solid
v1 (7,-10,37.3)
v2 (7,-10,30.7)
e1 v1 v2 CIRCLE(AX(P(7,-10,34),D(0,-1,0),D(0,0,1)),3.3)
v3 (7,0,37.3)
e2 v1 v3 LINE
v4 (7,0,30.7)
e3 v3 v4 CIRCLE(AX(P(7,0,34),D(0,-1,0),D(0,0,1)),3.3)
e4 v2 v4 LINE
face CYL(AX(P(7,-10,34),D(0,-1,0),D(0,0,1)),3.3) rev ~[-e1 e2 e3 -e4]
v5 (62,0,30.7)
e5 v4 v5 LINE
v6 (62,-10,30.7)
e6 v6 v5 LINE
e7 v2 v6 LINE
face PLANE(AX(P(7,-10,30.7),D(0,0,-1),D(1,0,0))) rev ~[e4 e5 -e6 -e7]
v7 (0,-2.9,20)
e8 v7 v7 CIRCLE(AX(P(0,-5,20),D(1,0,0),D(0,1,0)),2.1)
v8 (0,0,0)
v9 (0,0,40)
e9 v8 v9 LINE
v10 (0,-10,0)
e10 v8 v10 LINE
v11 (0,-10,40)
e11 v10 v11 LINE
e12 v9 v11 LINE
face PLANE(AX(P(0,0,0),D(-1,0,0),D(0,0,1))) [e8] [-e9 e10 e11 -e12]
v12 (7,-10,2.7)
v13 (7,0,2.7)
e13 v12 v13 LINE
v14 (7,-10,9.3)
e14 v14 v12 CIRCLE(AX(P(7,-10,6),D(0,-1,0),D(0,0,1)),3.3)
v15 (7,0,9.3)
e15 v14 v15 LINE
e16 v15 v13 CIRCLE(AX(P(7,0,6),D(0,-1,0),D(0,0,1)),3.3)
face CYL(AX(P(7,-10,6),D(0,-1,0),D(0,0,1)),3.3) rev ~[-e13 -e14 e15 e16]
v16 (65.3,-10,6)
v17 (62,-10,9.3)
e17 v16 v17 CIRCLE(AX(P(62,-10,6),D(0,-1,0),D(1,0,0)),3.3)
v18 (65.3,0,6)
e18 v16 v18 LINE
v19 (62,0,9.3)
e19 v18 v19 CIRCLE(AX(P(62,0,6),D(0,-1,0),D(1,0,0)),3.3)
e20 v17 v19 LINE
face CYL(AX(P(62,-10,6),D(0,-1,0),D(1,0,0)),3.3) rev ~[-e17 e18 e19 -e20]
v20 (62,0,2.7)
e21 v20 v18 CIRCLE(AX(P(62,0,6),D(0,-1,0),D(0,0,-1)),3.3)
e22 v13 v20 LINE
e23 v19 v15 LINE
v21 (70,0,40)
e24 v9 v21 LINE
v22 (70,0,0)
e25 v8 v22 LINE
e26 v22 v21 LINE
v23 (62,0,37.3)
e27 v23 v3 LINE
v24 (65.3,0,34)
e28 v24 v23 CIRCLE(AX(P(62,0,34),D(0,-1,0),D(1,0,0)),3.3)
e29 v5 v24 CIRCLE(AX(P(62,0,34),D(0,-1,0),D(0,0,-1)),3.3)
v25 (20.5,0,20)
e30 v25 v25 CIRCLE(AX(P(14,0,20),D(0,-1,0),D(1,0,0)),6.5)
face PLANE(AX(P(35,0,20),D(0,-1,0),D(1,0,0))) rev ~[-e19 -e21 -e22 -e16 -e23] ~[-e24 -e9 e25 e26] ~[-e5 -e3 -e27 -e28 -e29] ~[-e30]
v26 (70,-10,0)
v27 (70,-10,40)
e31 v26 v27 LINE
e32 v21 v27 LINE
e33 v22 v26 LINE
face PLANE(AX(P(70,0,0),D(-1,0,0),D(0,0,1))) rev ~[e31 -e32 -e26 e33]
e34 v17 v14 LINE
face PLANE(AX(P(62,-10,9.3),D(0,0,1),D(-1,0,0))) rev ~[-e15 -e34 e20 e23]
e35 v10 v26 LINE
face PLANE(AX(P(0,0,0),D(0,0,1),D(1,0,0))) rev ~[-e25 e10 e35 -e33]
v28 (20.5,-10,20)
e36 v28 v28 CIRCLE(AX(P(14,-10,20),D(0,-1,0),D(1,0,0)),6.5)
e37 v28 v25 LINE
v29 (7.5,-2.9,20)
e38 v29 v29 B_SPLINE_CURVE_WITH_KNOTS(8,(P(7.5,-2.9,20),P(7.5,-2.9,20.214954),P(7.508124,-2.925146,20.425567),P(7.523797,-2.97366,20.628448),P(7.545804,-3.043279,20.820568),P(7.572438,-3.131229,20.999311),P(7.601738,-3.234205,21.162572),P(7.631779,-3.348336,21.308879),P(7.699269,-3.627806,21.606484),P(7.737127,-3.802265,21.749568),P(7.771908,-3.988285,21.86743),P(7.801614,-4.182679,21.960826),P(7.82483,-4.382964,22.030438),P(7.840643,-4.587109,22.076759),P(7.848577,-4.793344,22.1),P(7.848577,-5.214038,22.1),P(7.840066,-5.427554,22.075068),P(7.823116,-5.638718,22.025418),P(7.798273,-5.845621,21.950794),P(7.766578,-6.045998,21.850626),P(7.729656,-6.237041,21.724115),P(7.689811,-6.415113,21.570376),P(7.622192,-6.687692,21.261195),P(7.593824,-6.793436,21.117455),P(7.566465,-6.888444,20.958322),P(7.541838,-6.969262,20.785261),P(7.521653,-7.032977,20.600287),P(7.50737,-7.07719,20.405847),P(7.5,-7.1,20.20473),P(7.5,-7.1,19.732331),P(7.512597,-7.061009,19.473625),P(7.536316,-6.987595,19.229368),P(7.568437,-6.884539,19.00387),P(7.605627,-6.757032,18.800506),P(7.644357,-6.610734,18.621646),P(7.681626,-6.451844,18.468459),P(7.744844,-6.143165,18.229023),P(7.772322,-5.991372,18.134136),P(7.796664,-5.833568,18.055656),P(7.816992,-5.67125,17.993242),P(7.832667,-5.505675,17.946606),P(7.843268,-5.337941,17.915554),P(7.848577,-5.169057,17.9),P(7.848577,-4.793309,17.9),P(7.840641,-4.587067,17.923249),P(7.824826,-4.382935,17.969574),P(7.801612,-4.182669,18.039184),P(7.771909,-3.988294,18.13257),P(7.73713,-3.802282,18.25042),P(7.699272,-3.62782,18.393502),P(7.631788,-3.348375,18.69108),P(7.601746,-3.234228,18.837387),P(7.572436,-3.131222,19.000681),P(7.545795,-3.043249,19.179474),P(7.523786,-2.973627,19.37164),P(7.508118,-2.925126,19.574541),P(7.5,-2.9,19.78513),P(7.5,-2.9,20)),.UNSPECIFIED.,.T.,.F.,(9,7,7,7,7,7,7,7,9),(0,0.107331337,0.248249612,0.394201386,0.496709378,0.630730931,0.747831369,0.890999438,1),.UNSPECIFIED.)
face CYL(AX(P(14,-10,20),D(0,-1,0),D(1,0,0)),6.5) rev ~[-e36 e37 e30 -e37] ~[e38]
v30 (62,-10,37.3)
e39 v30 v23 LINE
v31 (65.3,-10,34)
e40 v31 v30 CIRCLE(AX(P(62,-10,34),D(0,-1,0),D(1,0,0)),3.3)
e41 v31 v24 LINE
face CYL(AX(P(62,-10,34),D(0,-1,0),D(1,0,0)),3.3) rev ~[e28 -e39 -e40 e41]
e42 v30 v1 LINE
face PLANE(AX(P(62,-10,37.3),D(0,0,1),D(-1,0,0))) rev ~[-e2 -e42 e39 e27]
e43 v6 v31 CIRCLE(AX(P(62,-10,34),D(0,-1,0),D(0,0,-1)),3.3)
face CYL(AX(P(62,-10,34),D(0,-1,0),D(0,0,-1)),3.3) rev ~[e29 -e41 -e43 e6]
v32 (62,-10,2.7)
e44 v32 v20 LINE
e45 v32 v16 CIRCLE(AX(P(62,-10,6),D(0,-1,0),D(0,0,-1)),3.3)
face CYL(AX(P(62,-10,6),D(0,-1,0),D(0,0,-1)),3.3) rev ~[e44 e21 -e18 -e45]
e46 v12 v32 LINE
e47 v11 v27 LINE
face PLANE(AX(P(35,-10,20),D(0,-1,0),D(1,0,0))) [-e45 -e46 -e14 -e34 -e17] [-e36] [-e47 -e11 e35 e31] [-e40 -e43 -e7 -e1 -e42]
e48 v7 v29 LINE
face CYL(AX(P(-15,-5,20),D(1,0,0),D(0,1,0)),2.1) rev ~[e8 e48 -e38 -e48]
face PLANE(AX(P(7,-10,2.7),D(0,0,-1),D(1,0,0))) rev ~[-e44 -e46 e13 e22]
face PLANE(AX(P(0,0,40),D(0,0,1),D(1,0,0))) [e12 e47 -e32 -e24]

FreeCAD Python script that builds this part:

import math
import FreeCAD as App
import Part
import Sketcher
Q = App.Units.Quantity

doc = App.newDocument("Part")
body = doc.addObject("PartDesign::Body", "Body")

sketch1 = body.newObject("Sketcher::SketchObject", "Sketch")
sketch1.AttachmentSupport = (doc.getObject("XZ_Plane"), [""])
sketch1.MapMode = "FlatFace"
sketch1.addGeometry([
    Part.LineSegment(App.Vector(0, 40, 0), App.Vector(0, 0, 0)),
    Part.LineSegment(App.Vector(0, 0, 0), App.Vector(70, 0, 0)),
    Part.LineSegment(App.Vector(70, 0, 0), App.Vector(70, 40, 0)),
    Part.LineSegment(App.Vector(70, 40, 0), App.Vector(0, 40, 0)),
], False)
sketch1.addConstraint([
    Sketcher.Constraint("Coincident", 0, 2, 1, 1),
    Sketcher.Constraint("Coincident", 1, 2, 2, 1),
    Sketcher.Constraint("Coincident", 2, 2, 3, 1),
    Sketcher.Constraint("Coincident", 3, 2, 0, 1),
    Sketcher.Constraint("Vertical", 0),
    Sketcher.Constraint("Horizontal", 1),
    Sketcher.Constraint("Vertical", 2),
    Sketcher.Constraint("Horizontal", 3),
    Sketcher.Constraint("Coincident", 0, 2, -1, 1),
    Sketcher.Constraint("DistanceX", 1, 1, 1, 2, Q("70 mm")),
    Sketcher.Constraint("DistanceY", 0, 2, 0, 1, Q("40 mm")),
])
pad1 = body.newObject("PartDesign::Pad", "Pad")
pad1.Profile = sketch1
pad1.Length = 10

sketch2 = body.newObject("Sketcher::SketchObject", "Sketch001")
sketch2.AttachmentSupport = (doc.getObject("XZ_Plane"), [""])
sketch2.MapMode = "FlatFace"
sketch2.AttachmentOffset = App.Placement(App.Vector(0, 0, 10), App.Rotation())
sketch2.addGeometry([
    Part.ArcOfCircle(Part.Circle(App.Vector(62, 34, 0), App.Vector(0, 0, 1), 3.3), math.radians(-90), math.radians(0)),
    Part.ArcOfCircle(Part.Circle(App.Vector(62, 34, 0), App.Vector(0, 0, 1), 3.3), math.radians(0), math.radians(90)),
    Part.LineSegment(App.Vector(62, 37.3, 0), App.Vector(7, 37.3, 0)),
    Part.ArcOfCircle(Part.Circle(App.Vector(7, 34, 0), App.Vector(0, 0, 1), 3.3), math.radians(90), math.radians(270)),
    Part.LineSegment(App.Vector(7, 30.7, 0), App.Vector(62, 30.7, 0)),
    Part.ArcOfCircle(Part.Circle(App.Vector(7, 6, 0), App.Vector(0, 0, 1), 3.3), math.radians(90), math.radians(270)),
    Part.LineSegment(App.Vector(7, 2.7, 0), App.Vector(62, 2.7, 0)),
    Part.ArcOfCircle(Part.Circle(App.Vector(62, 6, 0), App.Vector(0, 0, 1), 3.3), math.radians(-90), math.radians(0)),
    Part.ArcOfCircle(Part.Circle(App.Vector(62, 6, 0), App.Vector(0, 0, 1), 3.3), math.radians(0), math.radians(90)),
    Part.LineSegment(App.Vector(62, 9.3, 0), App.Vector(7, 9.3, 0)),
    Part.Circle(App.Vector(14, 20, 0), App.Vector(0, 0, 1), 6.5),
], False)
sketch2.addConstraint([
    Sketcher.Constraint("Tangent", 0, 2, 1, 1),
    Sketcher.Constraint("Tangent", 1, 2, 2, 1),
    Sketcher.Constraint("Tangent", 2, 2, 3, 1),
    Sketcher.Constraint("Tangent", 3, 2, 4, 1),
    Sketcher.Constraint("Tangent", 4, 2, 0, 1),
    Sketcher.Constraint("Tangent", 5, 2, 6, 1),
    Sketcher.Constraint("Tangent", 6, 2, 7, 1),
    Sketcher.Constraint("Tangent", 7, 2, 8, 1),
    Sketcher.Constraint("Tangent", 8, 2, 9, 1),
    Sketcher.Constraint("Tangent", 9, 2, 5, 1),
    Sketcher.Constraint("Horizontal", 2),
    Sketcher.Constraint("Horizontal", 4),
    Sketcher.Constraint("Horizontal", 6),
    Sketcher.Constraint("Horizontal", 9),
    Sketcher.Constraint("Equal", 0, 1),
    Sketcher.Constraint("Equal", 3, 5),
    Sketcher.Constraint("Equal", 5, 7),
    Sketcher.Constraint("Horizontal", 3, 3, 0, 2),
    Sketcher.Constraint("Horizontal", 8, 3, 7, 2),
    Sketcher.Constraint("Vertical", 3, 3, 5, 3),
    Sketcher.Constraint("Vertical", 1, 3, 7, 3),
    Sketcher.Constraint("Diameter", 10, Q("13 mm")),
    Sketcher.Constraint("Radius", 0, Q("3.3 mm")),
    Sketcher.Constraint("DistanceX", 2, 2, 2, 1, Q("55 mm")),
    Sketcher.Constraint("DistanceX", -1, 1, 0, 3, Q("62 mm")),
    Sketcher.Constraint("DistanceY", -1, 1, 0, 3, Q("34 mm")),
    Sketcher.Constraint("DistanceY", -1, 1, 5, 3, Q("6 mm")),
    Sketcher.Constraint("DistanceX", -1, 1, 10, 3, Q("14 mm")),
    Sketcher.Constraint("DistanceY", -1, 1, 10, 3, Q("20 mm")),
])
pocket1 = body.newObject("PartDesign::Pocket", "Pocket")
pocket1.Profile = sketch2
pocket1.Length = 25

sketch3 = body.newObject("Sketcher::SketchObject", "Sketch002")
sketch3.AttachmentSupport = (doc.getObject("YZ_Plane"), [""])
sketch3.MapMode = "FlatFace"
sketch3.addGeometry(Part.Circle(App.Vector(-5, 20, 0), App.Vector(0, 0, 1), 2.1), False)
sketch3.addConstraint([
    Sketcher.Constraint("Diameter", 0, Q("4.2 mm")),
    Sketcher.Constraint("DistanceX", 0, 3, -1, 1, Q("5 mm")),
    Sketcher.Constraint("DistanceY", -1, 1, 0, 3, Q("20 mm")),
])
doc.recompute()
hole = body.newObject("PartDesign::Hole", "Hole")
hole.Profile = sketch3
hole.ThreadType = "None"
hole.Diameter = 4.2
hole.DepthType = "Dimension"
hole.Depth = 15
hole.DrillPoint = "Angled"
hole.DrillPointAngle = 118
hole.Reversed = True

doc.recompute()
